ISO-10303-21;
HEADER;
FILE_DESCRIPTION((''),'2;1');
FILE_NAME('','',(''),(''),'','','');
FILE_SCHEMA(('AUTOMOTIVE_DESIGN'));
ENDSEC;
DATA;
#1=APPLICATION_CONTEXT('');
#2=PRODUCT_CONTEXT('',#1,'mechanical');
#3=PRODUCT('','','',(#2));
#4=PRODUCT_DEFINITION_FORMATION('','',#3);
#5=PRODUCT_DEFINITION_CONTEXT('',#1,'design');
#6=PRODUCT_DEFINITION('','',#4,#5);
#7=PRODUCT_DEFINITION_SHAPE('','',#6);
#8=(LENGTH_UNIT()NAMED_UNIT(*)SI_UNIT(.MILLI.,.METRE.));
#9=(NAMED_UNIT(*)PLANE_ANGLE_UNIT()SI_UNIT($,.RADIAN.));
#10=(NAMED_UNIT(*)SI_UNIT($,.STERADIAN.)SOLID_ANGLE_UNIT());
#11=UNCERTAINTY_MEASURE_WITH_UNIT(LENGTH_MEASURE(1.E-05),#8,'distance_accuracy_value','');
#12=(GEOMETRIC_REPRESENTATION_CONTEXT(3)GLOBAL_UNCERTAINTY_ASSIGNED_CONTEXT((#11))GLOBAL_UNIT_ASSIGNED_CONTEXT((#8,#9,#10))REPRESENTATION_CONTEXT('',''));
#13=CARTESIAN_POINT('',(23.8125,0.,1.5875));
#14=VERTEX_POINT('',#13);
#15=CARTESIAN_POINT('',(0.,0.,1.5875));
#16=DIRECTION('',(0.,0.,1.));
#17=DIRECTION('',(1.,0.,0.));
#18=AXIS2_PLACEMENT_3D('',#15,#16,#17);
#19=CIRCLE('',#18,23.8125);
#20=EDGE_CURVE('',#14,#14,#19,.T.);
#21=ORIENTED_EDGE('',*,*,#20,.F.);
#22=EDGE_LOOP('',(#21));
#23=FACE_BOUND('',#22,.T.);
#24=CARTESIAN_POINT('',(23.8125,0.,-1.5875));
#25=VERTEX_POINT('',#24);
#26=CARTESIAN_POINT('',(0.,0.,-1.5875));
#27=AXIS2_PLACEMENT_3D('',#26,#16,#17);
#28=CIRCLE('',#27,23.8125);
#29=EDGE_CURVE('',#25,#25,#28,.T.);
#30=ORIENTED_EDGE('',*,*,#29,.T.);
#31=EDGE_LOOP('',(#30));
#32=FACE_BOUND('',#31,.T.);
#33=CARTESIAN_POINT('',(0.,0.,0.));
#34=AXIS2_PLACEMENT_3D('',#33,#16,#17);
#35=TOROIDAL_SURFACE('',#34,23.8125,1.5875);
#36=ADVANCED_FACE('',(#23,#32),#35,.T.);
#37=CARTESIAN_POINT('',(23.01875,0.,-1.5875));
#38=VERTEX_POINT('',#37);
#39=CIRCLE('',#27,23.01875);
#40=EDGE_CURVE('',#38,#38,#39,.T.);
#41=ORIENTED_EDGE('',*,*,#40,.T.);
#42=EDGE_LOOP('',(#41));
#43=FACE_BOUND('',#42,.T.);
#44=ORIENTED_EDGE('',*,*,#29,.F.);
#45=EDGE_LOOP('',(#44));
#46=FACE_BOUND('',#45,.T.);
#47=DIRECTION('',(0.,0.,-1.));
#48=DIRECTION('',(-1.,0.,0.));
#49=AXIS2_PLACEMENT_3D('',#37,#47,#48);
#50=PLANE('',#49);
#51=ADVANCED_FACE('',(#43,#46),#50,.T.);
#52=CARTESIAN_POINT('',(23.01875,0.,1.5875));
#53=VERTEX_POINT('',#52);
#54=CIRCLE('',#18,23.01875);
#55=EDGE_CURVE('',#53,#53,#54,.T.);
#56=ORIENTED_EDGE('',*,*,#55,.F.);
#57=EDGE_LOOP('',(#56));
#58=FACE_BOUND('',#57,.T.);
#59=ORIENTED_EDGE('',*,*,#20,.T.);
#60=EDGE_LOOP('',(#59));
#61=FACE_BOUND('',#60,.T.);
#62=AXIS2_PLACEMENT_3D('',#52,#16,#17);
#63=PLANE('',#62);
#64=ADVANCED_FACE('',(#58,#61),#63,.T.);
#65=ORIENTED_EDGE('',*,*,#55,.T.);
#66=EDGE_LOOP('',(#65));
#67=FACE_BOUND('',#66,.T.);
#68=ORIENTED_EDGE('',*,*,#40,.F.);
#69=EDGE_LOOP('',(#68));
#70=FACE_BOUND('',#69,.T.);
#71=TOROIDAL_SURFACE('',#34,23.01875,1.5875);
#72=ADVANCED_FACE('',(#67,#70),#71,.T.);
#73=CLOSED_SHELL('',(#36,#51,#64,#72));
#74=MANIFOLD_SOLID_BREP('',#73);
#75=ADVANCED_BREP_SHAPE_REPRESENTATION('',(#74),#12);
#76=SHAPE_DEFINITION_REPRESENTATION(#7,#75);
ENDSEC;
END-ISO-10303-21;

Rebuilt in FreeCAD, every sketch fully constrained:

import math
import FreeCAD as App
import Part
import Sketcher

V = App.Vector
Q = App.Units.Quantity

doc = App.newDocument("Part")
body = doc.addObject("PartDesign::Body", "Body")

# Sketch on XZ plane
sketch1 = body.newObject("Sketcher::SketchObject", "Sketch")
sketch1.AttachmentSupport = (doc.getObject("XZ_Plane"), [""])
sketch1.MapMode = "FlatFace"
sketch1.addGeometry([
    Part.LineSegment(V(23.8, -1.6, 0), V(23, -1.6, 0)),
    Part.ArcOfCircle(Part.Circle(V(23, 0, 0), V(0, 0, 1), 1.6), math.radians(90), math.radians(270)),
    Part.LineSegment(V(23, 1.6, 0), V(23.8, 1.6, 0)),
    Part.ArcOfCircle(Part.Circle(V(23.8, 0, 0), V(0, 0, 1), 1.6), math.radians(-90), math.radians(90)),
], False)
sketch1.addConstraint([
    Sketcher.Constraint("Tangent", 0, 2, 1, 2),
    Sketcher.Constraint("Tangent", 1, 1, 2, 1),
    Sketcher.Constraint("Tangent", 2, 2, 3, 2),
    Sketcher.Constraint("Tangent", 3, 1, 0, 1),
    Sketcher.Constraint("Horizontal", 0),
    Sketcher.Constraint("Horizontal", 2),
    Sketcher.Constraint("PointOnObject", 1, 3, -1),
    Sketcher.Constraint("Radius", 1, Q("0.0625 in")),
    Sketcher.Constraint("DistanceX", 0, 2, 0, 1, Q("0.03125 in")),
    Sketcher.Constraint("DistanceX", -1, 1, 1, 3, Q("0.90625 in")),
])
revolution = body.newObject("PartDesign::Revolution", "Revolution")
revolution.Profile = sketch1
revolution.ReferenceAxis = (sketch1, ["V_Axis"])
revolution.Angle = 360

doc.recompute()
